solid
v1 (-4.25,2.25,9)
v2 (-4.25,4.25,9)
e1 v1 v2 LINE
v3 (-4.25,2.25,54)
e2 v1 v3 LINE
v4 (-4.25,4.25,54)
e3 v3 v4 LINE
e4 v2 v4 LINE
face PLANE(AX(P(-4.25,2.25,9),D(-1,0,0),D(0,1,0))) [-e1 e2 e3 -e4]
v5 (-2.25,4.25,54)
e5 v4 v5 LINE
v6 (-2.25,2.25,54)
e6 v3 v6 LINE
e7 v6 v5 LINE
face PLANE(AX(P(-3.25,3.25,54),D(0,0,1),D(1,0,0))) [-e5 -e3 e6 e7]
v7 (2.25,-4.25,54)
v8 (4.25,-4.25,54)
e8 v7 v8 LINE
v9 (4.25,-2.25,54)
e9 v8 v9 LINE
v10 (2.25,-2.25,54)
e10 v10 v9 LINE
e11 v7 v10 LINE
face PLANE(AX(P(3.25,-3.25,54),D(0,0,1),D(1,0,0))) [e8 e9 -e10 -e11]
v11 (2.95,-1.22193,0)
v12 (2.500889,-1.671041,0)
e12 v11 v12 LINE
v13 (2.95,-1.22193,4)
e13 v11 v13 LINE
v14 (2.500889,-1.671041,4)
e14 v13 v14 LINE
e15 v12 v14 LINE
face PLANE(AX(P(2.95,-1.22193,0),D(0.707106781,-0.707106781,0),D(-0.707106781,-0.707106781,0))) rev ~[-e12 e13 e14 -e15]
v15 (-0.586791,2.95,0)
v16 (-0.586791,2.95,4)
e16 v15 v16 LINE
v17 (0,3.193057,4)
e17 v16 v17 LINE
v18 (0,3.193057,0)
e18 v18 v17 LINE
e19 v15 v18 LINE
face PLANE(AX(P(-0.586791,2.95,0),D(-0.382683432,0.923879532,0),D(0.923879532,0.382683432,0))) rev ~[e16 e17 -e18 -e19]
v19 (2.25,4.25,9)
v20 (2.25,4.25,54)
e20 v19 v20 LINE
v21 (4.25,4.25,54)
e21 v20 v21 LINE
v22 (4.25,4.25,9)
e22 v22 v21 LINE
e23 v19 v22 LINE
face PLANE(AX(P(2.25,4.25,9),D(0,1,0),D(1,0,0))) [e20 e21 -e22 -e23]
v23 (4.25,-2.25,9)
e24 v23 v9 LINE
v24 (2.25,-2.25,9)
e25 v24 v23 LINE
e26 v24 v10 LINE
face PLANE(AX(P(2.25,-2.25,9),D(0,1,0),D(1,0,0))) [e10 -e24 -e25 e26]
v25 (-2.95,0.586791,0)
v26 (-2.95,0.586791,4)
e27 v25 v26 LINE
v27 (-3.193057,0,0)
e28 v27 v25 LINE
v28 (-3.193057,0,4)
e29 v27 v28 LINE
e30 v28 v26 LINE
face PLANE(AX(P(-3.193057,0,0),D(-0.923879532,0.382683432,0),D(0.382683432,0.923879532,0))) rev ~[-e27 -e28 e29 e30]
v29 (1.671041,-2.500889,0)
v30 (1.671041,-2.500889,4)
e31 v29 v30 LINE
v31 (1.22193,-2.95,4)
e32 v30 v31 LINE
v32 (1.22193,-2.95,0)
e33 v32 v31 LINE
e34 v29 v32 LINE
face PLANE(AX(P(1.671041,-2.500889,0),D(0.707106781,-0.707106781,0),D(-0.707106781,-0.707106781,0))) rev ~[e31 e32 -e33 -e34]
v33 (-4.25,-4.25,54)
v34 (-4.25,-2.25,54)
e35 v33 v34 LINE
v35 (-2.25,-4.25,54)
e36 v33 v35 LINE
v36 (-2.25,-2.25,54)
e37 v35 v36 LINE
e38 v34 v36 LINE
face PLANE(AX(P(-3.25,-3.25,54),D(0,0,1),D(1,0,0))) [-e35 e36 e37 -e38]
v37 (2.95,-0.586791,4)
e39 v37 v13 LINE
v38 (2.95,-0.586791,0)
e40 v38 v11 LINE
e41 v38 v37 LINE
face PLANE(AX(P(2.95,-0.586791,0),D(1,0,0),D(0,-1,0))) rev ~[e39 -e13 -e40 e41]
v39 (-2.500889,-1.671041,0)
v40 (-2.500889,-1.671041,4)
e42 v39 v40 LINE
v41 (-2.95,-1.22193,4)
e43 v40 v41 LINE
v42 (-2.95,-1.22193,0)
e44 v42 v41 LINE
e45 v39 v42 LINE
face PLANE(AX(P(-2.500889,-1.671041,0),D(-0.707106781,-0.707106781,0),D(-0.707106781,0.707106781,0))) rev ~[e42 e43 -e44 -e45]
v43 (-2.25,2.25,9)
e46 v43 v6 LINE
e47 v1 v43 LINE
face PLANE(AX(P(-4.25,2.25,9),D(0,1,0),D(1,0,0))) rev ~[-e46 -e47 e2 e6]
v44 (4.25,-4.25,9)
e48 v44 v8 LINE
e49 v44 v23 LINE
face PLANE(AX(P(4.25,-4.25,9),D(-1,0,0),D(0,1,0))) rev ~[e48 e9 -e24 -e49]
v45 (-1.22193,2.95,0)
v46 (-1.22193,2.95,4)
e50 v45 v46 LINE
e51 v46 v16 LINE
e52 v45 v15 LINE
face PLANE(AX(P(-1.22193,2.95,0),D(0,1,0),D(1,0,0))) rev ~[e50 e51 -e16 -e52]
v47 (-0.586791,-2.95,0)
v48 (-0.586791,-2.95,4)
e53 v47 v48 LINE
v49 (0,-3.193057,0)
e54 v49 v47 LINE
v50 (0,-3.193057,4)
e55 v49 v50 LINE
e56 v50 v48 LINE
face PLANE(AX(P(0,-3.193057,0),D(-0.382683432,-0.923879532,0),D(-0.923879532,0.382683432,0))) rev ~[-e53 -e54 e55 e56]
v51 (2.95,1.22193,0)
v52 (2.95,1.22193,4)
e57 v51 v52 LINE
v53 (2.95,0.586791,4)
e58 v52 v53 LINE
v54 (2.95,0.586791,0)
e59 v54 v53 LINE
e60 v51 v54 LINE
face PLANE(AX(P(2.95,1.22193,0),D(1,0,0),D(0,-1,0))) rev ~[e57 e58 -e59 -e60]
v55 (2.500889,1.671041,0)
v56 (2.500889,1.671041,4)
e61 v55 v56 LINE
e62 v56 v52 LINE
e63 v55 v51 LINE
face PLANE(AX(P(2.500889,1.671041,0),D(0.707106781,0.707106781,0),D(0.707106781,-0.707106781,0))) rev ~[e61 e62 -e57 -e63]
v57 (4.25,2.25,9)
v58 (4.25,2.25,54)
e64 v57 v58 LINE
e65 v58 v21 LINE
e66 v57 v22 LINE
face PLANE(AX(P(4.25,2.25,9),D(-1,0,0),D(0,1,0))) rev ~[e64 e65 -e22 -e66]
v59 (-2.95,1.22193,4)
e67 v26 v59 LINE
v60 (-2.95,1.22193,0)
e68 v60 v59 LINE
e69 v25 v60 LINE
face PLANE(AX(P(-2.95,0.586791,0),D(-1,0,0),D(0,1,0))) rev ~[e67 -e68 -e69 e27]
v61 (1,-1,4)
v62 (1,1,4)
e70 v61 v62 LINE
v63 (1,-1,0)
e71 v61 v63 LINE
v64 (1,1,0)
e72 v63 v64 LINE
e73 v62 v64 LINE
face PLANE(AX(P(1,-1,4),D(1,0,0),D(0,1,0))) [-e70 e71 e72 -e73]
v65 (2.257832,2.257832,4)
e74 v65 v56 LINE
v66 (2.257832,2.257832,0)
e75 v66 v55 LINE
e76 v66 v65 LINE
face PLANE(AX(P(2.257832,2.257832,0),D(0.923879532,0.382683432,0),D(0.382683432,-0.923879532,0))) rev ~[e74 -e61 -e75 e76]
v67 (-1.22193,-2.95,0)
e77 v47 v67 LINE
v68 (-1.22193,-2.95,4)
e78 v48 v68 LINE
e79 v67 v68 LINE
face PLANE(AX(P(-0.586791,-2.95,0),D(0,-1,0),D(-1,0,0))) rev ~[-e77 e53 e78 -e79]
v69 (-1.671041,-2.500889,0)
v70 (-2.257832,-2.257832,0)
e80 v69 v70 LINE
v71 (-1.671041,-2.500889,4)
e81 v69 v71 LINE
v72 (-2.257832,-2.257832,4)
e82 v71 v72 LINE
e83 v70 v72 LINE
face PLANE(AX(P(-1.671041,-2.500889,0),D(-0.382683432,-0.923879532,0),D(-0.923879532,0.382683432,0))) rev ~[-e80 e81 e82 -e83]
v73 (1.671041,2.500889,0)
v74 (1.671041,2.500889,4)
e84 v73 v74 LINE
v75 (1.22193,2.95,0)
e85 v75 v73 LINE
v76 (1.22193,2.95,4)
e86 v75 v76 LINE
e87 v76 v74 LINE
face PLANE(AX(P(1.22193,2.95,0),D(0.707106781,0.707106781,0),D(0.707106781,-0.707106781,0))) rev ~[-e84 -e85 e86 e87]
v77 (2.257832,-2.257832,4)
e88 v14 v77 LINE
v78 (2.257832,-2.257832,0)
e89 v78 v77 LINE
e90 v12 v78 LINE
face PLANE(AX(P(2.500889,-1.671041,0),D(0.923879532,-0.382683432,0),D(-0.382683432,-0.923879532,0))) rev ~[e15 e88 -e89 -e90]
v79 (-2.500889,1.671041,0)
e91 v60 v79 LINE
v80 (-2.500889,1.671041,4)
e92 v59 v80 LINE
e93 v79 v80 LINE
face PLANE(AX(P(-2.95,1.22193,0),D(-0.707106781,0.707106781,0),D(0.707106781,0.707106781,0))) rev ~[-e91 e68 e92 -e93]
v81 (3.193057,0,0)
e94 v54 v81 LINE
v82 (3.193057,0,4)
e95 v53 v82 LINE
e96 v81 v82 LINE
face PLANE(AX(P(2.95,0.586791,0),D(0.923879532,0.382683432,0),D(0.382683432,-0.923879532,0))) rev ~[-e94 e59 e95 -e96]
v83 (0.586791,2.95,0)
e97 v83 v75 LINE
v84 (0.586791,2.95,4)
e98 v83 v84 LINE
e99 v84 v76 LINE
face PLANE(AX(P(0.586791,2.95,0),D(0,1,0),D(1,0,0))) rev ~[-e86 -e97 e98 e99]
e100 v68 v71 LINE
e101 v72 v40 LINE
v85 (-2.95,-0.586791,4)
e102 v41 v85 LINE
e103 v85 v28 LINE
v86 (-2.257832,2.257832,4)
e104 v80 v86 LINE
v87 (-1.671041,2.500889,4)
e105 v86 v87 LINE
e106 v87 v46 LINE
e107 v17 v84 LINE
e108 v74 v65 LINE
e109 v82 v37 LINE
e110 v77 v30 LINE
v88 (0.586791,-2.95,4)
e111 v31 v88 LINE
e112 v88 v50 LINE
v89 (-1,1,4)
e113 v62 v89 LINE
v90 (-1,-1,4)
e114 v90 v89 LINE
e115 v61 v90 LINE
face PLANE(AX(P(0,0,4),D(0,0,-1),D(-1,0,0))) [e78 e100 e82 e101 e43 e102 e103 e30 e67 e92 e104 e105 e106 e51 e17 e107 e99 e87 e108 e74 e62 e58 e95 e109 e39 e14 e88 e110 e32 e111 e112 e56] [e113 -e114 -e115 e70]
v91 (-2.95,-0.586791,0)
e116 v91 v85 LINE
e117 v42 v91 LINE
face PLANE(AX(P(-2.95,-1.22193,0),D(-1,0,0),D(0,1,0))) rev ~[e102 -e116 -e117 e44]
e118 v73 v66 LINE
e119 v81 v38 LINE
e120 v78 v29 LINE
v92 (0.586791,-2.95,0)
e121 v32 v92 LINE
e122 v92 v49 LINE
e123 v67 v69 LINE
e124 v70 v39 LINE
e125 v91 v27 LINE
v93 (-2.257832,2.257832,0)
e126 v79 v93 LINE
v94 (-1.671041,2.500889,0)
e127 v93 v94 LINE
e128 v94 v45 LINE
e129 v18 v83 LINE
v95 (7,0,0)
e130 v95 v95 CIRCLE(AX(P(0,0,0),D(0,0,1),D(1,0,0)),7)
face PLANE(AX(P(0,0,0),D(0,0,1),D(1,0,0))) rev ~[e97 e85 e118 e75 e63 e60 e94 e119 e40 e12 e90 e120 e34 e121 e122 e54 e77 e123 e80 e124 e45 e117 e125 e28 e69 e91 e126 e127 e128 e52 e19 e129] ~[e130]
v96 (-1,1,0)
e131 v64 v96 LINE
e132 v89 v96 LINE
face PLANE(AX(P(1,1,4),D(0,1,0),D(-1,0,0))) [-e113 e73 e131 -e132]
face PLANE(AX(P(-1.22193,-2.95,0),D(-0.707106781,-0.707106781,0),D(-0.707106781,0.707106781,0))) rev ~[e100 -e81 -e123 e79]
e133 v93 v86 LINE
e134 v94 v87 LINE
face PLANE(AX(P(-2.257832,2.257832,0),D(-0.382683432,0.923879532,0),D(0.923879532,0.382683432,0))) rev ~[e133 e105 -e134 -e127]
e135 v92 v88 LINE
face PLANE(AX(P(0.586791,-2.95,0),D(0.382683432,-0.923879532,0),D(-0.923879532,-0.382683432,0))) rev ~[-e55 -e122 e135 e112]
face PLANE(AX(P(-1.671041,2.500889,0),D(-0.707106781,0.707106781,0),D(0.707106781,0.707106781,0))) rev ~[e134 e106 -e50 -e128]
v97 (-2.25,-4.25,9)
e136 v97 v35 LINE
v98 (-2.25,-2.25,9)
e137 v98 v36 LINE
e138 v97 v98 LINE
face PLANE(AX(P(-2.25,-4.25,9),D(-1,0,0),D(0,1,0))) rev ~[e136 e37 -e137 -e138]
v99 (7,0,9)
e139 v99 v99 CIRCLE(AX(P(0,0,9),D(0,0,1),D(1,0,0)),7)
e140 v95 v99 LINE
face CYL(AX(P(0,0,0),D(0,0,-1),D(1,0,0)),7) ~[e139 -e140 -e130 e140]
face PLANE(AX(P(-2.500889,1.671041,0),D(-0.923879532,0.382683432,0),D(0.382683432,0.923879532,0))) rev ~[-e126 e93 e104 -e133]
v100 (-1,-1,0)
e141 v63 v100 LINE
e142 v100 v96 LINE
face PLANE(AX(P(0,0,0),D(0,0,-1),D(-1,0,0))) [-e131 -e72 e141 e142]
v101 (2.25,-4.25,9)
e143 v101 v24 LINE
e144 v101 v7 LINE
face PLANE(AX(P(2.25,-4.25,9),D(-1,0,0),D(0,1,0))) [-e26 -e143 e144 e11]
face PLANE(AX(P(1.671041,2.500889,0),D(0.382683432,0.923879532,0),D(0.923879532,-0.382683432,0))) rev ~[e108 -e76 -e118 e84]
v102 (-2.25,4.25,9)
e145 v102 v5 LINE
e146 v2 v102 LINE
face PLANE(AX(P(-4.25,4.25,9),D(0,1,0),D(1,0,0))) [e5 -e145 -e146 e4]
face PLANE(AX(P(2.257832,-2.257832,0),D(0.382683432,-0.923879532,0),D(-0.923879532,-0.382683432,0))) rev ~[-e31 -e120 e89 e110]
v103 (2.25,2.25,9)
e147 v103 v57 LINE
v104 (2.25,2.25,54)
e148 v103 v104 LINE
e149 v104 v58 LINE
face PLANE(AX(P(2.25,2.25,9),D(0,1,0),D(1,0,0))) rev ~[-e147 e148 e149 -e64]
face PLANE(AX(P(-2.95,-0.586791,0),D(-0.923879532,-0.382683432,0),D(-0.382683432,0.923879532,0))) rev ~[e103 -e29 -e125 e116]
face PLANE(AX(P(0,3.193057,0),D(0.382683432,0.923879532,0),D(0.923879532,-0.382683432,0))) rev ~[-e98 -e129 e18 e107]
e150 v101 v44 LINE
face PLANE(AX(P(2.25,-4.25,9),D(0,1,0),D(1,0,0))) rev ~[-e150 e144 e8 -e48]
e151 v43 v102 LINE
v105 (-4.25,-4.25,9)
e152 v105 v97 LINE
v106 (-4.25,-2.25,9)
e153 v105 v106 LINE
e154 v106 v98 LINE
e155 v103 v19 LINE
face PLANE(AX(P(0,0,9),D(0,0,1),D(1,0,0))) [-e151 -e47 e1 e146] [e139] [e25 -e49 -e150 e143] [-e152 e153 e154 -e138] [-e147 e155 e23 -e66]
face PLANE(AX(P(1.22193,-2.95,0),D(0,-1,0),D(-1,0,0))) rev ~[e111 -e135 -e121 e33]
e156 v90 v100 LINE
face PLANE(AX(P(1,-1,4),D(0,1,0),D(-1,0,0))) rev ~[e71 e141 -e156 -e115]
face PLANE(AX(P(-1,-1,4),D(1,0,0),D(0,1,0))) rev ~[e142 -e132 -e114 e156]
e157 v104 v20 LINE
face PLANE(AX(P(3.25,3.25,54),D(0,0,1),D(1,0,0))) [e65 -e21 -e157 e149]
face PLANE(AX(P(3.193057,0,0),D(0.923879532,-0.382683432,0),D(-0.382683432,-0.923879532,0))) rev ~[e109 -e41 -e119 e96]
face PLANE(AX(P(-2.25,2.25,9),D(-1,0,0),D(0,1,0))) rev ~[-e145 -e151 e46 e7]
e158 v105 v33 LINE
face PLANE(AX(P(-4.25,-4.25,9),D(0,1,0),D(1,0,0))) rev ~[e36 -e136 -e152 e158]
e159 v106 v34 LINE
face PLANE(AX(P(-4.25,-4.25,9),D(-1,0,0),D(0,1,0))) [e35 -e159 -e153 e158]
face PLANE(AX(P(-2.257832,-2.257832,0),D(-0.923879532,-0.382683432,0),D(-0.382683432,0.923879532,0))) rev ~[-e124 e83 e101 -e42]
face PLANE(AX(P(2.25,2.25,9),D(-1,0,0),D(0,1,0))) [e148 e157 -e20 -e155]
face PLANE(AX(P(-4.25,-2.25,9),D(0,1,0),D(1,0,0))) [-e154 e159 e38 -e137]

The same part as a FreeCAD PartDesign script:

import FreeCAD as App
import Part
import Sketcher

V = App.Vector
Q = App.Units.Quantity


def add_polygon(sketch, points):
    """Adds a closed chain of lines whose ends are joined by coincident constraints."""
    first, n = sketch.GeometryCount, len(points)
    for a, b in zip(points, points[1:] + points[:1]):
        sketch.addGeometry(Part.LineSegment(App.Vector(*a, 0), App.Vector(*b, 0)), False)
    for i in range(n):
        sketch.addConstraint(Sketcher.Constraint("Coincident", first + i, 2, first + (i + 1) % n, 1))

doc = App.newDocument("Part")
body = doc.addObject("PartDesign::Body", "Body")

# Sketch on XY plane
sketch1 = doc.addObject("Sketcher::SketchObject", "Sketch")
body.addObject(sketch1)
sketch1.AttachmentSupport = (doc.XY_Plane, [""])
sketch1.MapMode = "FlatFace"
sketch1.addGeometry(Part.Circle(V(0, 0, 0), V(0, 0, 1), 7), False)
sketch1.addConstraint(Sketcher.Constraint("Coincident", 0, 3, -1, 1))
sketch1.addConstraint(Sketcher.Constraint("Diameter", 0, Q("14 mm")))
pad1 = doc.addObject("PartDesign::Pad", "Pad")
body.addObject(pad1)
pad1.Profile = sketch1
pad1.Length = 9

# Sketch on XY plane
sketch2 = doc.addObject("Sketcher::SketchObject", "Sketch001")
body.addObject(sketch2)
sketch2.AttachmentSupport = (doc.XY_Plane, [""])
sketch2.MapMode = "FlatFace"
sketch2.AttachmentOffset = App.Placement(V(0, 0, 9), App.Rotation())
add_polygon(sketch2, [(2.2, 4.2), (2.2, 2.2), (4.2, 2.2), (4.2, 4.2)])  # lines 0-3
add_polygon(sketch2, [(-4.2, 4.2), (-4.2, 2.2), (-2.2, 2.2), (-2.2, 4.2)])  # lines 4-7
add_polygon(sketch2, [(2.2, -2.2), (2.2, -4.2), (4.2, -4.2), (4.2, -2.2)])  # lines 8-11
add_polygon(sketch2, [(-4.2, -2.2), (-4.2, -4.2), (-2.2, -4.2), (-2.2, -2.2)])  # lines 12-15
sketch2.addConstraint(Sketcher.Constraint("Vertical", 0))
sketch2.addConstraint(Sketcher.Constraint("Horizontal", 1))
sketch2.addConstraint(Sketcher.Constraint("Vertical", 2))
sketch2.addConstraint(Sketcher.Constraint("Horizontal", 3))
sketch2.addConstraint(Sketcher.Constraint("Vertical", 4))
sketch2.addConstraint(Sketcher.Constraint("Horizontal", 5))
sketch2.addConstraint(Sketcher.Constraint("Vertical", 6))
sketch2.addConstraint(Sketcher.Constraint("Horizontal", 7))
sketch2.addConstraint(Sketcher.Constraint("Vertical", 8))
sketch2.addConstraint(Sketcher.Constraint("Horizontal", 9))
sketch2.addConstraint(Sketcher.Constraint("Vertical", 10))
sketch2.addConstraint(Sketcher.Constraint("Horizontal", 11))
sketch2.addConstraint(Sketcher.Constraint("Vertical", 12))
sketch2.addConstraint(Sketcher.Constraint("Horizontal", 13))
sketch2.addConstraint(Sketcher.Constraint("Vertical", 14))
sketch2.addConstraint(Sketcher.Constraint("Horizontal", 15))
sketch2.addConstraint(Sketcher.Constraint("Symmetric", 6, 2, 8, 2, -1, 1))
sketch2.addConstraint(Sketcher.Constraint("Symmetric", 4, 2, 10, 2, -1, 1))
sketch2.addConstraint(Sketcher.Constraint("Symmetric", 2, 2, 12, 2, -1, 1))
sketch2.addConstraint(Sketcher.Constraint("Symmetric", 0, 2, 14, 2, -1, 1))
sketch2.addConstraint(Sketcher.Constraint("Symmetric", 1, 2, 4, 2, -2))
sketch2.addConstraint(Sketcher.Constraint("Symmetric", 3, 2, 6, 2, -2))
sketch2.addConstraint(Sketcher.Constraint("Equal", 15, 0))
sketch2.addConstraint(Sketcher.Constraint("DistanceX", 1, 1, 1, 2, Q("2 mm")))
sketch2.addConstraint(Sketcher.Constraint("DistanceX", 4, 2, 0, 2, Q("6.5 mm")))
sketch2.addConstraint(Sketcher.Constraint("DistanceY", 8, 2, 0, 2, Q("6.5 mm")))
pad2 = doc.addObject("PartDesign::Pad", "Pad001")
body.addObject(pad2)
pad2.Profile = sketch2
pad2.Length = 45

# Sketch on XY plane
sketch3 = doc.addObject("Sketcher::SketchObject", "Sketch002")
body.addObject(sketch3)
sketch3.AttachmentSupport = (doc.XY_Plane, [""])
sketch3.MapMode = "FlatFace"
add_polygon(sketch3, [(2.5, 1.7), (3, 1.2), (3, 0.6), (3.2, 0), (3, -0.6), (3, -1.2), (2.5, -1.7), (2.3, -2.3), (1.7, -2.5), (1.2, -3), (0.6, -3), (0, -3.2), (-0.6, -3), (-1.2, -3), (-1.7, -2.5), (-2.3, -2.3), (-2.5, -1.7), (-3, -1.2), (-3, -0.6), (-3.2, 0), (-3, 0.6), (-3, 1.2), (-2.5, 1.7), (-2.3, 2.3), (-1.7, 2.5), (-1.2, 3), (-0.6, 3), (0, 3.2), (0.6, 3), (1.2, 3), (1.7, 2.5), (2.3, 2.3)])  # lines 0-31
sketch3.addConstraint(Sketcher.Constraint("Vertical", 1))
sketch3.addConstraint(Sketcher.Constraint("Vertical", 4))
sketch3.addConstraint(Sketcher.Constraint("Horizontal", 9))
sketch3.addConstraint(Sketcher.Constraint("Horizontal", 12))
sketch3.addConstraint(Sketcher.Constraint("Vertical", 17))
sketch3.addConstraint(Sketcher.Constraint("Vertical", 20))
sketch3.addConstraint(Sketcher.Constraint("Horizontal", 25))
sketch3.addConstraint(Sketcher.Constraint("Horizontal", 28))
sketch3.addConstraint(Sketcher.Constraint("Symmetric", 0, 2, 16, 2, -1, 1))
sketch3.addConstraint(Sketcher.Constraint("Symmetric", 2, 2, 18, 2, -1, 1))
sketch3.addConstraint(Sketcher.Constraint("Symmetric", 3, 2, 19, 2, -1, 1))
sketch3.addConstraint(Sketcher.Constraint("Symmetric", 5, 2, 21, 2, -1, 1))
sketch3.addConstraint(Sketcher.Constraint("Symmetric", 6, 2, 22, 2, -1, 1))
sketch3.addConstraint(Sketcher.Constraint("Symmetric", 7, 2, 23, 2, -1, 1))
sketch3.addConstraint(Sketcher.Constraint("Symmetric", 8, 2, 24, 2, -1, 1))
sketch3.addConstraint(Sketcher.Constraint("Symmetric", 10, 2, 26, 2, -1, 1))
sketch3.addConstraint(Sketcher.Constraint("Symmetric", 11, 2, 27, 2, -1, 1))
sketch3.addConstraint(Sketcher.Constraint("Symmetric", 13, 2, 29, 2, -1, 1))
sketch3.addConstraint(Sketcher.Constraint("Symmetric", 14, 2, 30, 2, -1, 1))
sketch3.addConstraint(Sketcher.Constraint("Symmetric", 15, 2, 31, 2, -1, 1))
sketch3.addConstraint(Sketcher.Constraint("Symmetric", 9, 2, 11, 2, -2))
sketch3.addConstraint(Sketcher.Constraint("Symmetric", 7, 2, 13, 2, -2))
sketch3.addConstraint(Sketcher.Constraint("Symmetric", 6, 2, 14, 2, -2))
sketch3.addConstraint(Sketcher.Constraint("Symmetric", 5, 2, 15, 2, -2))
sketch3.addConstraint(Sketcher.Constraint("Symmetric", 4, 2, 16, 2, -2))
sketch3.addConstraint(Sketcher.Constraint("PointOnObject", 2, 2, -1))
sketch3.addConstraint(Sketcher.Constraint("PointOnObject", 10, 2, -2))
sketch3.addConstraint(Sketcher.Constraint("Perpendicular", 0, 5))
sketch3.addConstraint(Sketcher.Constraint("Parallel", 3, 6))
sketch3.addConstraint(Sketcher.Constraint("Perpendicular", 2, 7))
sketch3.addConstraint(Sketcher.Constraint("Parallel", 5, 8))
sketch3.addConstraint(Sketcher.Constraint("Parallel", 7, 10))
sketch3.addConstraint(Sketcher.Constraint("Perpendicular", 6, 11))
sketch3.addConstraint(Sketcher.Constraint("Perpendicular", 8, 13))
sketch3.addConstraint(Sketcher.Constraint("Parallel", 15, 18))
sketch3.addConstraint(Sketcher.Constraint("Perpendicular", 16, 21))
sketch3.addConstraint(Sketcher.Constraint("Parallel", 23, 26))
sketch3.addConstraint(Sketcher.Constraint("Perpendicular", 24, 29))
sketch3.addConstraint(Sketcher.Constraint("Equal", 28, 1))
sketch3.addConstraint(Sketcher.Constraint("Equal", 0, 2))
sketch3.addConstraint(Sketcher.Constraint("Equal", 5, 6))
sketch3.addConstraint(Sketcher.Constraint("Equal", 6, 7))
sketch3.addConstraint(Sketcher.Constraint("Equal", 7, 8))
sketch3.addConstraint(Sketcher.Constraint("Equal", 8, 10))
sketch3.addConstraint(Sketcher.Constraint("Angle", 2, Q("-67.5 deg")))
sketch3.addConstraint(Sketcher.Constraint("DistanceX", -1, 1, 0, 2, Q("2.95 mm")))
sketch3.addConstraint(Sketcher.Constraint("DistanceX", 9, 2, 9, 1, Q("0.635139 mm")))
pocket1 = doc.addObject("PartDesign::Pocket", "Pocket")
body.addObject(pocket1)
pocket1.Profile = sketch3
pocket1.Length = 4
pocket1.Reversed = True

# Sketch on XY plane
sketch4 = doc.addObject("Sketcher::SketchObject", "Sketch003")
body.addObject(sketch4)
sketch4.AttachmentSupport = (doc.XY_Plane, [""])
sketch4.MapMode = "FlatFace"
sketch4.AttachmentOffset = App.Placement(V(0, 0, 4), App.Rotation())
add_polygon(sketch4, [(1, 1), (1, -1), (-1, -1), (-1, 1)])  # lines 0-3
sketch4.addConstraint(Sketcher.Constraint("Vertical", 0))
sketch4.addConstraint(Sketcher.Constraint("Horizontal", 1))
sketch4.addConstraint(Sketcher.Constraint("Vertical", 2))
sketch4.addConstraint(Sketcher.Constraint("Horizontal", 3))
sketch4.addConstraint(Sketcher.Constraint("Symmetric", 0, 2, 2, 2, -1, 1))
sketch4.addConstraint(Sketcher.Constraint("Equal", 3, 0))
sketch4.addConstraint(Sketcher.Constraint("DistanceX", 1, 2, 1, 1, Q("2 mm")))
pad3 = doc.addObject("PartDesign::Pad", "Pad002")
body.addObject(pad3)
pad3.Profile = sketch4
pad3.Length = 4
pad3.Reversed = True

doc.recompute()
